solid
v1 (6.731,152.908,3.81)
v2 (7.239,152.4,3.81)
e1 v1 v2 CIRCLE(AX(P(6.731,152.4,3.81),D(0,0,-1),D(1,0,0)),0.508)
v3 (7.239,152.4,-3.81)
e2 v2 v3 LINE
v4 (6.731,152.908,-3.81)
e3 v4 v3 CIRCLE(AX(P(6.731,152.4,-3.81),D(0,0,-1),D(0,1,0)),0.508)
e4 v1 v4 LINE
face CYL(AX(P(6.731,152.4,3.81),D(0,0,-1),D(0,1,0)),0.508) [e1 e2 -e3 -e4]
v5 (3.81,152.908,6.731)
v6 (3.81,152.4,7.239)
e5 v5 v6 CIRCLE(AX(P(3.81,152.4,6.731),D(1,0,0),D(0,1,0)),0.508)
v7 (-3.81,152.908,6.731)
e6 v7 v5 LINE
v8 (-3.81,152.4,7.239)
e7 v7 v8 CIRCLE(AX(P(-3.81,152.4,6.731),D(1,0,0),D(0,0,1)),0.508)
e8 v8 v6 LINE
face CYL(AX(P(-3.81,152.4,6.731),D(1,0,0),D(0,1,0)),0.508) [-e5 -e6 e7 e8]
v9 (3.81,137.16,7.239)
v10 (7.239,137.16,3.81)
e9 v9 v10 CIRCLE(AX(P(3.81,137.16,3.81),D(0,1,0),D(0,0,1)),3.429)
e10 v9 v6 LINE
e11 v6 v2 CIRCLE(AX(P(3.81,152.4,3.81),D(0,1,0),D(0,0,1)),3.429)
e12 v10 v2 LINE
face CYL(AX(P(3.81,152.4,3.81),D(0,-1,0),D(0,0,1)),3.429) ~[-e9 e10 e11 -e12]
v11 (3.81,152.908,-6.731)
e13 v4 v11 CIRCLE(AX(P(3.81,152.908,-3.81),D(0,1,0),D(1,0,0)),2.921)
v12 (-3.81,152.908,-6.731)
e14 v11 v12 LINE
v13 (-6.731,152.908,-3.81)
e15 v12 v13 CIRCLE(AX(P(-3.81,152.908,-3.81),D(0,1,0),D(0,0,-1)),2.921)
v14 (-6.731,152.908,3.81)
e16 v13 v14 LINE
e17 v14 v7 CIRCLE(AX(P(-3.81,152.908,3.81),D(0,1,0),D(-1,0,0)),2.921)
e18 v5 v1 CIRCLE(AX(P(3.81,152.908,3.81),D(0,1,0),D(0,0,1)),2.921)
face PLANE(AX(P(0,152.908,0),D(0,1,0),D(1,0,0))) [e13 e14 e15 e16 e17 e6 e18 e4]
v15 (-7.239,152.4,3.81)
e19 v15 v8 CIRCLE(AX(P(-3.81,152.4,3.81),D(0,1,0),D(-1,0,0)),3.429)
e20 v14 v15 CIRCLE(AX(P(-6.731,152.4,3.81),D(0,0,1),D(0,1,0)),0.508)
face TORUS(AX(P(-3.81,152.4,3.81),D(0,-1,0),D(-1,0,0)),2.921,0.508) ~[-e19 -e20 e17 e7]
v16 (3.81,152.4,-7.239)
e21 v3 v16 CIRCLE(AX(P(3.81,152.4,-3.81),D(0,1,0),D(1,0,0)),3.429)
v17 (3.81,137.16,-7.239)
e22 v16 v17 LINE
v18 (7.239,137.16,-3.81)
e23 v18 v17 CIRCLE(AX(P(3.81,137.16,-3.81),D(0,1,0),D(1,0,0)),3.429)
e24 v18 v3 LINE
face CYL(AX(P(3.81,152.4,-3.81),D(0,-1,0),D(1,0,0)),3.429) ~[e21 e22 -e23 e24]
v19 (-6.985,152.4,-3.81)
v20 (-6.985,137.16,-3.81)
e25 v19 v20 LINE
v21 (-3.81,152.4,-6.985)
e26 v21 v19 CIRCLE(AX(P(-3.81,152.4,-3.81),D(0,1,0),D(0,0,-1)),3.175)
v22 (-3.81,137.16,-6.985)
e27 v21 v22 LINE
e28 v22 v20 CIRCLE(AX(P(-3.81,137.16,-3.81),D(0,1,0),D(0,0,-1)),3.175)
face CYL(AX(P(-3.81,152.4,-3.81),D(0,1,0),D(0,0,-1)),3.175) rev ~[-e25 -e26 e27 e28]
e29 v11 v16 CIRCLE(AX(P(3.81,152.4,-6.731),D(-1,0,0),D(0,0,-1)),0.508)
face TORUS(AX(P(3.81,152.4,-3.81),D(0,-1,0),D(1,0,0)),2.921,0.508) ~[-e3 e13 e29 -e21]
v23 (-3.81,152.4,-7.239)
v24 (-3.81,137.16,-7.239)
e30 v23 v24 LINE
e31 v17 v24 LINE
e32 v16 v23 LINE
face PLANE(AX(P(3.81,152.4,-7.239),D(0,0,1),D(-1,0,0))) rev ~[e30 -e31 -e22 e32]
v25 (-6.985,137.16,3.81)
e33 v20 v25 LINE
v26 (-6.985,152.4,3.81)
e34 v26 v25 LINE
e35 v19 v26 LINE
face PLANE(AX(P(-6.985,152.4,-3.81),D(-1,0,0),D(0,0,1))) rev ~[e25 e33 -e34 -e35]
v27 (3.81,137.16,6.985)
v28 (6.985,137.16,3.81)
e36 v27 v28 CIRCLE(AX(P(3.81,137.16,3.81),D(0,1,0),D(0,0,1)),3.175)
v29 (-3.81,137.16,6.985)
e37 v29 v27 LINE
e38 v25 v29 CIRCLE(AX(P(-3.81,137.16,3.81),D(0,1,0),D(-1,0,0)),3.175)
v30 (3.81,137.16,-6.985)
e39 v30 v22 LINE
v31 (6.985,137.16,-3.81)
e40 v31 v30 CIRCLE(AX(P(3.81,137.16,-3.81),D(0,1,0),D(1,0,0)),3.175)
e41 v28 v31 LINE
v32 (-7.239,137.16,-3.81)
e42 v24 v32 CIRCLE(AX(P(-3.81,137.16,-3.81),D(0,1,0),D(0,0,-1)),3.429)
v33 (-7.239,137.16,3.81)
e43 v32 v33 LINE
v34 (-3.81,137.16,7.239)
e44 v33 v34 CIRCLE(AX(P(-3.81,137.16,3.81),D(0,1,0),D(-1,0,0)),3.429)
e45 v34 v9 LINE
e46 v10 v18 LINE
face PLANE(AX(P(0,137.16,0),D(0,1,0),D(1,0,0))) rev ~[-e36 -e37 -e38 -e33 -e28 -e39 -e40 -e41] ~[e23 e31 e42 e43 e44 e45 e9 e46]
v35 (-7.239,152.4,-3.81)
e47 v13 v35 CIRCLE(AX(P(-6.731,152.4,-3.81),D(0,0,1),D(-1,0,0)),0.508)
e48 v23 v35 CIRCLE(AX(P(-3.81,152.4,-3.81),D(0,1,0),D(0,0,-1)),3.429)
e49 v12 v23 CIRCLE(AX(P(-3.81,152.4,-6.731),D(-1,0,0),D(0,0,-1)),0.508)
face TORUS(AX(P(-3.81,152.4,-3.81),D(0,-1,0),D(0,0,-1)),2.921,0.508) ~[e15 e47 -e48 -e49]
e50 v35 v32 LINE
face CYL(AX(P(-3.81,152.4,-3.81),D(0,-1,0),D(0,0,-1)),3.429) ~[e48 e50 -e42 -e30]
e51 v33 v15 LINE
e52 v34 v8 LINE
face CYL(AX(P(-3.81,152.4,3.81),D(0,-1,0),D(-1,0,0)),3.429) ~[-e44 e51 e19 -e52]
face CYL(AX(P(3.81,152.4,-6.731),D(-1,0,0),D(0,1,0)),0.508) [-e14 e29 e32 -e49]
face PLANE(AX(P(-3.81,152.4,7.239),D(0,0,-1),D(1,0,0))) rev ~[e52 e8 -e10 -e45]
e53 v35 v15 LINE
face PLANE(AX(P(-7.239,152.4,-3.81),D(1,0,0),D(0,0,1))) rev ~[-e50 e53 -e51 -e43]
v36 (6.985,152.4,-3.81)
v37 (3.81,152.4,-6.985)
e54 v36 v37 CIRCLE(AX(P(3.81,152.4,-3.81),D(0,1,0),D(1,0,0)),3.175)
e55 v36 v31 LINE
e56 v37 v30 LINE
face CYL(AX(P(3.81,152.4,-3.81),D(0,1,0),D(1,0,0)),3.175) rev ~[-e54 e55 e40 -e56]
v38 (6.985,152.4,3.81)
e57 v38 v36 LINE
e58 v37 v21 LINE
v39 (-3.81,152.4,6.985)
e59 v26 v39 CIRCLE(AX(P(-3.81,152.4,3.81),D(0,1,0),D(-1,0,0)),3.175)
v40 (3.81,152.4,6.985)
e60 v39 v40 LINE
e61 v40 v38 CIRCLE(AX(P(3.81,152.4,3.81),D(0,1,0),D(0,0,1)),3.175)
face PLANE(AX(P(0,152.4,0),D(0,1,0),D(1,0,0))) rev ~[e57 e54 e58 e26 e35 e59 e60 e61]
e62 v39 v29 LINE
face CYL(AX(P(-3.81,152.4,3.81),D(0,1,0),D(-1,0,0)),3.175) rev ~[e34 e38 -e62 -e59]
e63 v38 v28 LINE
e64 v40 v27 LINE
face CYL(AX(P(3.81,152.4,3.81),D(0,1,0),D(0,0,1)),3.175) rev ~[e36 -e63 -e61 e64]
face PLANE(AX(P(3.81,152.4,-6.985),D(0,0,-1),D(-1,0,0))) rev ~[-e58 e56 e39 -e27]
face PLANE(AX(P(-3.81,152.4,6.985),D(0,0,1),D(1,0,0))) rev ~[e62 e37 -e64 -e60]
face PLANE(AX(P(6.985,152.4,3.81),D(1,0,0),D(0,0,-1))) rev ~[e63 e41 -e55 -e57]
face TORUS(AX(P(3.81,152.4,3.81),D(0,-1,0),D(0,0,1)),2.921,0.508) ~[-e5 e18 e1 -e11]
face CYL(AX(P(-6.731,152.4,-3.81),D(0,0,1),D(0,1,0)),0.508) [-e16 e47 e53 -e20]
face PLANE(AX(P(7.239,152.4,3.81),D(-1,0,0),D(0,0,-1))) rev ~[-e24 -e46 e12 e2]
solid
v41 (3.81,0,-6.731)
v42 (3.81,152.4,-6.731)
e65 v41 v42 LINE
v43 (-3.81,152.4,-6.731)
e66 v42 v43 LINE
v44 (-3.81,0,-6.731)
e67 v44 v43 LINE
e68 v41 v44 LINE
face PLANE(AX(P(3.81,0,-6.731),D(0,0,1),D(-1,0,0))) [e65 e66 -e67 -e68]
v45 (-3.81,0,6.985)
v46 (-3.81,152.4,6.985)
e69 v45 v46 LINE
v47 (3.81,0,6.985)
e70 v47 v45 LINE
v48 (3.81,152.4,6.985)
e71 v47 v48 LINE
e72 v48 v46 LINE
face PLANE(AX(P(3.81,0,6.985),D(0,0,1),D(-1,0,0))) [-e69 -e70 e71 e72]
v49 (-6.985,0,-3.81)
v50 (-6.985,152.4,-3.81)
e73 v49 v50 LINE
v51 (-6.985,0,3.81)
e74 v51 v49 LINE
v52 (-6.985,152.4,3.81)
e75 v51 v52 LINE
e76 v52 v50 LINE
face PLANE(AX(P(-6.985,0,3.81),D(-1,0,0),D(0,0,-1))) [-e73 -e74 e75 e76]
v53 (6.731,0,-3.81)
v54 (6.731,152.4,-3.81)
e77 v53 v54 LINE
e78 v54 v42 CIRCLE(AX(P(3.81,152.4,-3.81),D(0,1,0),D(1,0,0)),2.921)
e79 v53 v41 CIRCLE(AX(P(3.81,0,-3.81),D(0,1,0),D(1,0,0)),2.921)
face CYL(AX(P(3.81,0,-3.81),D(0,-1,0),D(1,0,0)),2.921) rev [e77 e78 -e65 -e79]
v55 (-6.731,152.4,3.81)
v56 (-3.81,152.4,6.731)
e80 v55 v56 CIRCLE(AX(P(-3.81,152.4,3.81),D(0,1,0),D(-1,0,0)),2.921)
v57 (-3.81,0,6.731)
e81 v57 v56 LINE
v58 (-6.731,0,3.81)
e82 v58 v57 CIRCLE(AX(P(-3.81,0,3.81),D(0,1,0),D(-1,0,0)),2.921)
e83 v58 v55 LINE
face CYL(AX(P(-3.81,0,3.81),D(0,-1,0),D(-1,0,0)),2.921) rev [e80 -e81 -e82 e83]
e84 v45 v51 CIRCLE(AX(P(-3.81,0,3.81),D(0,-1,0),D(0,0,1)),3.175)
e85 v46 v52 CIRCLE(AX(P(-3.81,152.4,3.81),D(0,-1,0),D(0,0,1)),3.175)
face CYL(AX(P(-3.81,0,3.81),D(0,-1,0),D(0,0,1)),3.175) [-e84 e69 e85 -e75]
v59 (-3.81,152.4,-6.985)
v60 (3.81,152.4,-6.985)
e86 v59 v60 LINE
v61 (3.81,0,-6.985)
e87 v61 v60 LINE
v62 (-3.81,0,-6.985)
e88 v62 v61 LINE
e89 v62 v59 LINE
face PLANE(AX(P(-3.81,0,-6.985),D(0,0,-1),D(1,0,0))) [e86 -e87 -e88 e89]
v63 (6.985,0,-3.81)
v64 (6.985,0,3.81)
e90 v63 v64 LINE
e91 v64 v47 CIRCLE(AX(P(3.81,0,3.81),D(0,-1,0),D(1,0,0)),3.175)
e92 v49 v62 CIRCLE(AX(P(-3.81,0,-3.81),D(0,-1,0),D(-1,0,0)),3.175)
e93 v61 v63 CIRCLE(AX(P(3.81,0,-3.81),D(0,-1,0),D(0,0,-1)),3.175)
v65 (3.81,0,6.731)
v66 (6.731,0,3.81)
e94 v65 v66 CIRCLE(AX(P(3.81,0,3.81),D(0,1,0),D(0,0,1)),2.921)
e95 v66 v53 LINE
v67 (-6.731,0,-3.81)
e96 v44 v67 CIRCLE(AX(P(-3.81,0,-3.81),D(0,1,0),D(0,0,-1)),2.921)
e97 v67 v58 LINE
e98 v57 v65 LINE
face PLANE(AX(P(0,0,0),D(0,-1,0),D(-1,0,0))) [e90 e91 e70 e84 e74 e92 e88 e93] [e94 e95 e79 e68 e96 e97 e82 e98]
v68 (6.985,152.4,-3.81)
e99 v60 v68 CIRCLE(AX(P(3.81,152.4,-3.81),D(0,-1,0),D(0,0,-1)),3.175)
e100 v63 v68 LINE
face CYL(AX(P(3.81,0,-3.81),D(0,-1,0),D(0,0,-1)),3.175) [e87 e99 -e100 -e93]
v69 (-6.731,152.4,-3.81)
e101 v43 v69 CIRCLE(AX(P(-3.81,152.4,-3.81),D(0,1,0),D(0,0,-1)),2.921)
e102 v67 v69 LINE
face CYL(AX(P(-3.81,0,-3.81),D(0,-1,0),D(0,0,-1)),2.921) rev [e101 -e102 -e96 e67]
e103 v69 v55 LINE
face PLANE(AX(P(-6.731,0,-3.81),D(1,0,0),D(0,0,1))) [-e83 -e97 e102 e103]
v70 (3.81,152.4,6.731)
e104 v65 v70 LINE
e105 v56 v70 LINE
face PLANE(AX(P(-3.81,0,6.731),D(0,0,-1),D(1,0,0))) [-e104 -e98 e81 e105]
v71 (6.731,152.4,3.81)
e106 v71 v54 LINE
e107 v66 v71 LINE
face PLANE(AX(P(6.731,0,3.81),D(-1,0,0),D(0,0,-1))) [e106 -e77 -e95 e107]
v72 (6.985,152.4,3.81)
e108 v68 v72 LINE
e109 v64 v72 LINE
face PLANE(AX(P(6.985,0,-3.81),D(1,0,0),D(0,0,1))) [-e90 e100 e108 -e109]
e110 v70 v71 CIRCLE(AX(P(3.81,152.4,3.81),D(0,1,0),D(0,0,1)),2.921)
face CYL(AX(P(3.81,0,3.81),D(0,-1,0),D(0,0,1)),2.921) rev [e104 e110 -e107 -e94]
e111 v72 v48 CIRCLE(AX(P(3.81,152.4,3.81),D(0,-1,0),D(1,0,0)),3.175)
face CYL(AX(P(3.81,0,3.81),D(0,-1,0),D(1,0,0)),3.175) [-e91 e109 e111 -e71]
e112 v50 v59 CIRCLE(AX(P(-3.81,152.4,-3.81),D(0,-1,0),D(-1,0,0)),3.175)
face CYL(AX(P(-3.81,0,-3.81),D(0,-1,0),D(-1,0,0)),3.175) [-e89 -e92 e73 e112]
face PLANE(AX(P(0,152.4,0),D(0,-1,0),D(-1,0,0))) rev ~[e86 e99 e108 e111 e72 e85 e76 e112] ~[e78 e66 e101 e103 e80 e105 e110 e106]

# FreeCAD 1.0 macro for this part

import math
import FreeCAD as App
import Part
import Sketcher

V = App.Vector
Q = App.Units.Quantity


def edges_at(feature, points):
    """Names of the edges that pass closest to the given points."""
    edges = feature.Shape.Edges
    near = lambda p: min(range(len(edges)), key=lambda i: edges[i].distToShape(Part.Vertex(*p))[0])
    return sorted({f"Edge{near(p) + 1}" for p in points})

doc = App.newDocument("Part")
body = doc.addObject("PartDesign::Body", "Body")

# Sketch on XZ plane
sketch1 = body.newObject("Sketcher::SketchObject", "Sketch")
sketch1.AttachmentSupport = (doc.getObject("XZ_Plane"), [""])
sketch1.MapMode = "FlatFace"
sketch1.addGeometry([
    Part.LineSegment(V(-3.81, 6.985, 0), V(3.81, 6.985, 0)),  # 0
    Part.ArcOfCircle(Part.Circle(V(3.81, 3.81, 0), V(0, 0, 1), 3.175), math.radians(0), math.radians(90)),  # 1
    Part.LineSegment(V(6.985, 3.81, 0), V(6.985, -3.81, 0)),  # 2
    Part.ArcOfCircle(Part.Circle(V(3.81, -3.81, 0), V(0, 0, 1), 3.175), math.radians(-90), math.radians(0)),  # 3
    Part.LineSegment(V(3.81, -6.985, 0), V(-3.81, -6.985, 0)),  # 4
    Part.ArcOfCircle(Part.Circle(V(-3.81, -3.81, 0), V(0, 0, 1), 3.175), math.radians(-180), math.radians(-90)),  # 5
    Part.LineSegment(V(-6.985, -3.81, 0), V(-6.985, 3.81, 0)),  # 6
    Part.ArcOfCircle(Part.Circle(V(-3.81, 3.81, 0), V(0, 0, 1), 3.175), math.radians(90), math.radians(180)),  # 7
    Part.ArcOfCircle(Part.Circle(V(3.81, -3.81, 0), V(0, 0, 1), 2.921), math.radians(-90), math.radians(0)),  # 8
    Part.LineSegment(V(6.731, -3.81, 0), V(6.731, 3.81, 0)),  # 9
    Part.ArcOfCircle(Part.Circle(V(3.81, 3.81, 0), V(0, 0, 1), 2.921), math.radians(0), math.radians(90)),  # 10
    Part.LineSegment(V(3.81, 6.731, 0), V(-3.81, 6.731, 0)),  # 11
    Part.ArcOfCircle(Part.Circle(V(-3.81, 3.81, 0), V(0, 0, 1), 2.921), math.radians(90), math.radians(180)),  # 12
    Part.LineSegment(V(-6.731, 3.81, 0), V(-6.731, -3.81, 0)),  # 13
    Part.ArcOfCircle(Part.Circle(V(-3.81, -3.81, 0), V(0, 0, 1), 2.921), math.radians(180), math.radians(270)),  # 14
    Part.LineSegment(V(-3.81, -6.731, 0), V(3.81, -6.731, 0)),  # 15
], False)
sketch1.addConstraint([
    Sketcher.Constraint("Tangent", 0, 2, 1, 2),
    Sketcher.Constraint("Tangent", 1, 1, 2, 1),
    Sketcher.Constraint("Tangent", 2, 2, 3, 2),
    Sketcher.Constraint("Tangent", 3, 1, 4, 1),
    Sketcher.Constraint("Tangent", 4, 2, 5, 2),
    Sketcher.Constraint("Tangent", 5, 1, 6, 1),
    Sketcher.Constraint("Tangent", 6, 2, 7, 2),
    Sketcher.Constraint("Tangent", 7, 1, 0, 1),
    Sketcher.Constraint("Tangent", 8, 2, 9, 1),
    Sketcher.Constraint("Tangent", 9, 2, 10, 1),
    Sketcher.Constraint("Tangent", 10, 2, 11, 1),
    Sketcher.Constraint("Tangent", 11, 2, 12, 1),
    Sketcher.Constraint("Tangent", 12, 2, 13, 1),
    Sketcher.Constraint("Tangent", 13, 2, 14, 1),
    Sketcher.Constraint("Tangent", 14, 2, 15, 1),
    Sketcher.Constraint("Tangent", 15, 2, 8, 1),
    Sketcher.Constraint("Horizontal", 0),
    Sketcher.Constraint("Vertical", 2),
    Sketcher.Constraint("Horizontal", 4),
    Sketcher.Constraint("Vertical", 6),
    Sketcher.Constraint("Vertical", 9),
    Sketcher.Constraint("Horizontal", 11),
    Sketcher.Constraint("Vertical", 13),
    Sketcher.Constraint("Horizontal", 15),
    Sketcher.Constraint("Coincident", 8, 3, 3, 3),
    Sketcher.Constraint("Coincident", 10, 3, 1, 3),
    Sketcher.Constraint("Coincident", 12, 3, 7, 3),
    Sketcher.Constraint("Equal", 1, 3),
    Sketcher.Constraint("Equal", 3, 5),
    Sketcher.Constraint("Equal", 5, 7),
    Sketcher.Constraint("Equal", 12, 14),
    Sketcher.Constraint("Symmetric", 1, 3, 5, 3, -1, 1),
    Sketcher.Constraint("Equal", 15, 2),
    Sketcher.Constraint("DistanceX", 0, 1, 0, 2, Q("0.3 in")),
    Sketcher.Constraint("Radius", 1, Q("0.125 in")),
    Sketcher.Constraint("Radius", 8, Q("0.115 in")),
])
pad1 = body.newObject("PartDesign::Pad", "Pad")
pad1.Profile = sketch1
pad1.Length = Q("6 in")
pad1.Reversed = True
body2 = doc.addObject("PartDesign::Body", "Body001")

# Sketch on XZ plane
sketch2 = body2.newObject("Sketcher::SketchObject", "Sketch001")
sketch2.AttachmentSupport = (doc.getObject("XZ_Plane001"), [""])
sketch2.MapMode = "FlatFace"
sketch2.AttachmentOffset = App.Placement(V(0, 0, -6 * 25.4), App.Rotation())
sketch2.addGeometry([
    Part.LineSegment(V(-7.239, -3.81, 0), V(-7.239, 3.81, 0)),  # 0
    Part.ArcOfCircle(Part.Circle(V(-3.81, 3.81, 0), V(0, 0, 1), 3.429), math.radians(90), math.radians(180)),  # 1
    Part.LineSegment(V(-3.81, 7.239, 0), V(3.81, 7.239, 0)),  # 2
    Part.ArcOfCircle(Part.Circle(V(3.81, 3.81, 0), V(0, 0, 1), 3.429), math.radians(0), math.radians(90)),  # 3
    Part.LineSegment(V(7.239, 3.81, 0), V(7.239, -3.81, 0)),  # 4
    Part.ArcOfCircle(Part.Circle(V(3.81, -3.81, 0), V(0, 0, 1), 3.429), math.radians(-90), math.radians(0)),  # 5
    Part.LineSegment(V(3.81, -7.239, 0), V(-3.81, -7.239, 0)),  # 6
    Part.ArcOfCircle(Part.Circle(V(-3.81, -3.81, 0), V(0, 0, 1), 3.429), math.radians(180), math.radians(270)),  # 7
    Part.LineSegment(V(3.81, 6.985, 0), V(-3.81, 6.985, 0)),  # 8
    Part.ArcOfCircle(Part.Circle(V(-3.81, 3.81, 0), V(0, 0, 1), 3.175), math.radians(90), math.radians(180)),  # 9
    Part.LineSegment(V(-6.985, 3.81, 0), V(-6.985, -3.81, 0)),  # 10
    Part.ArcOfCircle(Part.Circle(V(-3.81, -3.81, 0), V(0, 0, 1), 3.175), math.radians(-180), math.radians(-90)),  # 11
    Part.LineSegment(V(-3.81, -6.985, 0), V(3.81, -6.985, 0)),  # 12
    Part.ArcOfCircle(Part.Circle(V(3.81, -3.81, 0), V(0, 0, 1), 3.175), math.radians(-90), math.radians(0)),  # 13
    Part.LineSegment(V(6.985, -3.81, 0), V(6.985, 3.81, 0)),  # 14
    Part.ArcOfCircle(Part.Circle(V(3.81, 3.81, 0), V(0, 0, 1), 3.175), math.radians(0), math.radians(90)),  # 15
], False)
sketch2.addConstraint([
    Sketcher.Constraint("Tangent", 0, 2, 1, 2),
    Sketcher.Constraint("Tangent", 1, 1, 2, 1),
    Sketcher.Constraint("Tangent", 2, 2, 3, 2),
    Sketcher.Constraint("Tangent", 3, 1, 4, 1),
    Sketcher.Constraint("Tangent", 4, 2, 5, 2),
    Sketcher.Constraint("Tangent", 5, 1, 6, 1),
    Sketcher.Constraint("Tangent", 6, 2, 7, 2),
    Sketcher.Constraint("Tangent", 7, 1, 0, 1),
    Sketcher.Constraint("Tangent", 8, 2, 9, 1),
    Sketcher.Constraint("Tangent", 9, 2, 10, 1),
    Sketcher.Constraint("Tangent", 10, 2, 11, 1),
    Sketcher.Constraint("Tangent", 11, 2, 12, 1),
    Sketcher.Constraint("Tangent", 12, 2, 13, 1),
    Sketcher.Constraint("Tangent", 13, 2, 14, 1),
    Sketcher.Constraint("Tangent", 14, 2, 15, 1),
    Sketcher.Constraint("Tangent", 15, 2, 8, 1),
    Sketcher.Constraint("Vertical", 0),
    Sketcher.Constraint("Horizontal", 2),
    Sketcher.Constraint("Vertical", 4),
    Sketcher.Constraint("Horizontal", 6),
    Sketcher.Constraint("Horizontal", 8),
    Sketcher.Constraint("Vertical", 10),
    Sketcher.Constraint("Horizontal", 12),
    Sketcher.Constraint("Vertical", 14),
    Sketcher.Constraint("Coincident", 9, 3, 1, 3),
    Sketcher.Constraint("Coincident", 11, 3, 7, 3),
    Sketcher.Constraint("Coincident", 13, 3, 5, 3),
    Sketcher.Constraint("Equal", 1, 3),
    Sketcher.Constraint("Equal", 3, 5),
    Sketcher.Constraint("Equal", 5, 7),
    Sketcher.Constraint("Equal", 13, 15),
    Sketcher.Constraint("Symmetric", 1, 3, 5, 3, -1, 1),
    Sketcher.Constraint("Equal", 12, 0),
    Sketcher.Constraint("DistanceX", 2, 1, 2, 2, Q("0.3 in")),
    Sketcher.Constraint("Radius", 1, Q("0.135 in")),
    Sketcher.Constraint("Radius", 9, Q("0.125 in")),
])
pad2 = body2.newObject("PartDesign::Pad", "Pad001")
pad2.Profile = sketch2
pad2.Length = Q("0.6 in")

# Sketch on XZ plane
sketch3 = body2.newObject("Sketcher::SketchObject", "Sketch002")
sketch3.AttachmentSupport = (doc.getObject("XZ_Plane001"), [""])
sketch3.MapMode = "FlatFace"
sketch3.AttachmentOffset = App.Placement(V(0, 0, -6 * 25.4), App.Rotation())
sketch3.addGeometry([
    Part.LineSegment(V(-7.239, -3.81, 0), V(-7.239, 3.81, 0)),  # 0
    Part.ArcOfCircle(Part.Circle(V(-3.81, 3.81, 0), V(0, 0, 1), 3.429), math.radians(90), math.radians(180)),  # 1
    Part.LineSegment(V(-3.81, 7.239, 0), V(3.81, 7.239, 0)),  # 2
    Part.ArcOfCircle(Part.Circle(V(3.81, 3.81, 0), V(0, 0, 1), 3.429), math.radians(0), math.radians(90)),  # 3
    Part.LineSegment(V(7.239, 3.81, 0), V(7.239, -3.81, 0)),  # 4
    Part.ArcOfCircle(Part.Circle(V(3.81, -3.81, 0), V(0, 0, 1), 3.429), math.radians(-90), math.radians(0)),  # 5
    Part.LineSegment(V(3.81, -7.239, 0), V(-3.81, -7.239, 0)),  # 6
    Part.ArcOfCircle(Part.Circle(V(-3.81, -3.81, 0), V(0, 0, 1), 3.429), math.radians(180), math.radians(270)),  # 7
], False)
sketch3.addConstraint([
    Sketcher.Constraint("Tangent", 0, 2, 1, 2),
    Sketcher.Constraint("Tangent", 1, 1, 2, 1),
    Sketcher.Constraint("Tangent", 2, 2, 3, 2),
    Sketcher.Constraint("Tangent", 3, 1, 4, 1),
    Sketcher.Constraint("Tangent", 4, 2, 5, 2),
    Sketcher.Constraint("Tangent", 5, 1, 6, 1),
    Sketcher.Constraint("Tangent", 6, 2, 7, 2),
    Sketcher.Constraint("Tangent", 7, 1, 0, 1),
    Sketcher.Constraint("Vertical", 0),
    Sketcher.Constraint("Horizontal", 2),
    Sketcher.Constraint("Vertical", 4),
    Sketcher.Constraint("Horizontal", 6),
    Sketcher.Constraint("Equal", 1, 3),
    Sketcher.Constraint("Equal", 3, 5),
    Sketcher.Constraint("Equal", 5, 7),
    Sketcher.Constraint("Symmetric", 1, 3, 5, 3, -1, 1),
    Sketcher.Constraint("Equal", 6, 0),
    Sketcher.Constraint("DistanceX", 2, 1, 2, 2, Q("0.3 in")),
    Sketcher.Constraint("Radius", 1, Q("0.135 in")),
])
pad3 = body2.newObject("PartDesign::Pad", "Pad002")
pad3.Profile = sketch3
pad3.Length = Q("0.02 in")
pad3.Reversed = True
doc.recompute()

fillet = body2.newObject("PartDesign::Fillet", "Fillet")
fillet.Base = (pad3, edges_at(pad3, [
    (-6.235, 152.908, -6.235),
    (-7.239, 152.908, 0),
    (-6.235, 152.908, 6.235),
    (0, 152.908, 7.239),
    (6.235, 152.908, 6.235),
    (7.239, 152.908, 0),
    (6.235, 152.908, -6.235),
    (0, 152.908, -7.239),
]))
fillet.Radius = Q("0.02 in")

doc.recompute()
